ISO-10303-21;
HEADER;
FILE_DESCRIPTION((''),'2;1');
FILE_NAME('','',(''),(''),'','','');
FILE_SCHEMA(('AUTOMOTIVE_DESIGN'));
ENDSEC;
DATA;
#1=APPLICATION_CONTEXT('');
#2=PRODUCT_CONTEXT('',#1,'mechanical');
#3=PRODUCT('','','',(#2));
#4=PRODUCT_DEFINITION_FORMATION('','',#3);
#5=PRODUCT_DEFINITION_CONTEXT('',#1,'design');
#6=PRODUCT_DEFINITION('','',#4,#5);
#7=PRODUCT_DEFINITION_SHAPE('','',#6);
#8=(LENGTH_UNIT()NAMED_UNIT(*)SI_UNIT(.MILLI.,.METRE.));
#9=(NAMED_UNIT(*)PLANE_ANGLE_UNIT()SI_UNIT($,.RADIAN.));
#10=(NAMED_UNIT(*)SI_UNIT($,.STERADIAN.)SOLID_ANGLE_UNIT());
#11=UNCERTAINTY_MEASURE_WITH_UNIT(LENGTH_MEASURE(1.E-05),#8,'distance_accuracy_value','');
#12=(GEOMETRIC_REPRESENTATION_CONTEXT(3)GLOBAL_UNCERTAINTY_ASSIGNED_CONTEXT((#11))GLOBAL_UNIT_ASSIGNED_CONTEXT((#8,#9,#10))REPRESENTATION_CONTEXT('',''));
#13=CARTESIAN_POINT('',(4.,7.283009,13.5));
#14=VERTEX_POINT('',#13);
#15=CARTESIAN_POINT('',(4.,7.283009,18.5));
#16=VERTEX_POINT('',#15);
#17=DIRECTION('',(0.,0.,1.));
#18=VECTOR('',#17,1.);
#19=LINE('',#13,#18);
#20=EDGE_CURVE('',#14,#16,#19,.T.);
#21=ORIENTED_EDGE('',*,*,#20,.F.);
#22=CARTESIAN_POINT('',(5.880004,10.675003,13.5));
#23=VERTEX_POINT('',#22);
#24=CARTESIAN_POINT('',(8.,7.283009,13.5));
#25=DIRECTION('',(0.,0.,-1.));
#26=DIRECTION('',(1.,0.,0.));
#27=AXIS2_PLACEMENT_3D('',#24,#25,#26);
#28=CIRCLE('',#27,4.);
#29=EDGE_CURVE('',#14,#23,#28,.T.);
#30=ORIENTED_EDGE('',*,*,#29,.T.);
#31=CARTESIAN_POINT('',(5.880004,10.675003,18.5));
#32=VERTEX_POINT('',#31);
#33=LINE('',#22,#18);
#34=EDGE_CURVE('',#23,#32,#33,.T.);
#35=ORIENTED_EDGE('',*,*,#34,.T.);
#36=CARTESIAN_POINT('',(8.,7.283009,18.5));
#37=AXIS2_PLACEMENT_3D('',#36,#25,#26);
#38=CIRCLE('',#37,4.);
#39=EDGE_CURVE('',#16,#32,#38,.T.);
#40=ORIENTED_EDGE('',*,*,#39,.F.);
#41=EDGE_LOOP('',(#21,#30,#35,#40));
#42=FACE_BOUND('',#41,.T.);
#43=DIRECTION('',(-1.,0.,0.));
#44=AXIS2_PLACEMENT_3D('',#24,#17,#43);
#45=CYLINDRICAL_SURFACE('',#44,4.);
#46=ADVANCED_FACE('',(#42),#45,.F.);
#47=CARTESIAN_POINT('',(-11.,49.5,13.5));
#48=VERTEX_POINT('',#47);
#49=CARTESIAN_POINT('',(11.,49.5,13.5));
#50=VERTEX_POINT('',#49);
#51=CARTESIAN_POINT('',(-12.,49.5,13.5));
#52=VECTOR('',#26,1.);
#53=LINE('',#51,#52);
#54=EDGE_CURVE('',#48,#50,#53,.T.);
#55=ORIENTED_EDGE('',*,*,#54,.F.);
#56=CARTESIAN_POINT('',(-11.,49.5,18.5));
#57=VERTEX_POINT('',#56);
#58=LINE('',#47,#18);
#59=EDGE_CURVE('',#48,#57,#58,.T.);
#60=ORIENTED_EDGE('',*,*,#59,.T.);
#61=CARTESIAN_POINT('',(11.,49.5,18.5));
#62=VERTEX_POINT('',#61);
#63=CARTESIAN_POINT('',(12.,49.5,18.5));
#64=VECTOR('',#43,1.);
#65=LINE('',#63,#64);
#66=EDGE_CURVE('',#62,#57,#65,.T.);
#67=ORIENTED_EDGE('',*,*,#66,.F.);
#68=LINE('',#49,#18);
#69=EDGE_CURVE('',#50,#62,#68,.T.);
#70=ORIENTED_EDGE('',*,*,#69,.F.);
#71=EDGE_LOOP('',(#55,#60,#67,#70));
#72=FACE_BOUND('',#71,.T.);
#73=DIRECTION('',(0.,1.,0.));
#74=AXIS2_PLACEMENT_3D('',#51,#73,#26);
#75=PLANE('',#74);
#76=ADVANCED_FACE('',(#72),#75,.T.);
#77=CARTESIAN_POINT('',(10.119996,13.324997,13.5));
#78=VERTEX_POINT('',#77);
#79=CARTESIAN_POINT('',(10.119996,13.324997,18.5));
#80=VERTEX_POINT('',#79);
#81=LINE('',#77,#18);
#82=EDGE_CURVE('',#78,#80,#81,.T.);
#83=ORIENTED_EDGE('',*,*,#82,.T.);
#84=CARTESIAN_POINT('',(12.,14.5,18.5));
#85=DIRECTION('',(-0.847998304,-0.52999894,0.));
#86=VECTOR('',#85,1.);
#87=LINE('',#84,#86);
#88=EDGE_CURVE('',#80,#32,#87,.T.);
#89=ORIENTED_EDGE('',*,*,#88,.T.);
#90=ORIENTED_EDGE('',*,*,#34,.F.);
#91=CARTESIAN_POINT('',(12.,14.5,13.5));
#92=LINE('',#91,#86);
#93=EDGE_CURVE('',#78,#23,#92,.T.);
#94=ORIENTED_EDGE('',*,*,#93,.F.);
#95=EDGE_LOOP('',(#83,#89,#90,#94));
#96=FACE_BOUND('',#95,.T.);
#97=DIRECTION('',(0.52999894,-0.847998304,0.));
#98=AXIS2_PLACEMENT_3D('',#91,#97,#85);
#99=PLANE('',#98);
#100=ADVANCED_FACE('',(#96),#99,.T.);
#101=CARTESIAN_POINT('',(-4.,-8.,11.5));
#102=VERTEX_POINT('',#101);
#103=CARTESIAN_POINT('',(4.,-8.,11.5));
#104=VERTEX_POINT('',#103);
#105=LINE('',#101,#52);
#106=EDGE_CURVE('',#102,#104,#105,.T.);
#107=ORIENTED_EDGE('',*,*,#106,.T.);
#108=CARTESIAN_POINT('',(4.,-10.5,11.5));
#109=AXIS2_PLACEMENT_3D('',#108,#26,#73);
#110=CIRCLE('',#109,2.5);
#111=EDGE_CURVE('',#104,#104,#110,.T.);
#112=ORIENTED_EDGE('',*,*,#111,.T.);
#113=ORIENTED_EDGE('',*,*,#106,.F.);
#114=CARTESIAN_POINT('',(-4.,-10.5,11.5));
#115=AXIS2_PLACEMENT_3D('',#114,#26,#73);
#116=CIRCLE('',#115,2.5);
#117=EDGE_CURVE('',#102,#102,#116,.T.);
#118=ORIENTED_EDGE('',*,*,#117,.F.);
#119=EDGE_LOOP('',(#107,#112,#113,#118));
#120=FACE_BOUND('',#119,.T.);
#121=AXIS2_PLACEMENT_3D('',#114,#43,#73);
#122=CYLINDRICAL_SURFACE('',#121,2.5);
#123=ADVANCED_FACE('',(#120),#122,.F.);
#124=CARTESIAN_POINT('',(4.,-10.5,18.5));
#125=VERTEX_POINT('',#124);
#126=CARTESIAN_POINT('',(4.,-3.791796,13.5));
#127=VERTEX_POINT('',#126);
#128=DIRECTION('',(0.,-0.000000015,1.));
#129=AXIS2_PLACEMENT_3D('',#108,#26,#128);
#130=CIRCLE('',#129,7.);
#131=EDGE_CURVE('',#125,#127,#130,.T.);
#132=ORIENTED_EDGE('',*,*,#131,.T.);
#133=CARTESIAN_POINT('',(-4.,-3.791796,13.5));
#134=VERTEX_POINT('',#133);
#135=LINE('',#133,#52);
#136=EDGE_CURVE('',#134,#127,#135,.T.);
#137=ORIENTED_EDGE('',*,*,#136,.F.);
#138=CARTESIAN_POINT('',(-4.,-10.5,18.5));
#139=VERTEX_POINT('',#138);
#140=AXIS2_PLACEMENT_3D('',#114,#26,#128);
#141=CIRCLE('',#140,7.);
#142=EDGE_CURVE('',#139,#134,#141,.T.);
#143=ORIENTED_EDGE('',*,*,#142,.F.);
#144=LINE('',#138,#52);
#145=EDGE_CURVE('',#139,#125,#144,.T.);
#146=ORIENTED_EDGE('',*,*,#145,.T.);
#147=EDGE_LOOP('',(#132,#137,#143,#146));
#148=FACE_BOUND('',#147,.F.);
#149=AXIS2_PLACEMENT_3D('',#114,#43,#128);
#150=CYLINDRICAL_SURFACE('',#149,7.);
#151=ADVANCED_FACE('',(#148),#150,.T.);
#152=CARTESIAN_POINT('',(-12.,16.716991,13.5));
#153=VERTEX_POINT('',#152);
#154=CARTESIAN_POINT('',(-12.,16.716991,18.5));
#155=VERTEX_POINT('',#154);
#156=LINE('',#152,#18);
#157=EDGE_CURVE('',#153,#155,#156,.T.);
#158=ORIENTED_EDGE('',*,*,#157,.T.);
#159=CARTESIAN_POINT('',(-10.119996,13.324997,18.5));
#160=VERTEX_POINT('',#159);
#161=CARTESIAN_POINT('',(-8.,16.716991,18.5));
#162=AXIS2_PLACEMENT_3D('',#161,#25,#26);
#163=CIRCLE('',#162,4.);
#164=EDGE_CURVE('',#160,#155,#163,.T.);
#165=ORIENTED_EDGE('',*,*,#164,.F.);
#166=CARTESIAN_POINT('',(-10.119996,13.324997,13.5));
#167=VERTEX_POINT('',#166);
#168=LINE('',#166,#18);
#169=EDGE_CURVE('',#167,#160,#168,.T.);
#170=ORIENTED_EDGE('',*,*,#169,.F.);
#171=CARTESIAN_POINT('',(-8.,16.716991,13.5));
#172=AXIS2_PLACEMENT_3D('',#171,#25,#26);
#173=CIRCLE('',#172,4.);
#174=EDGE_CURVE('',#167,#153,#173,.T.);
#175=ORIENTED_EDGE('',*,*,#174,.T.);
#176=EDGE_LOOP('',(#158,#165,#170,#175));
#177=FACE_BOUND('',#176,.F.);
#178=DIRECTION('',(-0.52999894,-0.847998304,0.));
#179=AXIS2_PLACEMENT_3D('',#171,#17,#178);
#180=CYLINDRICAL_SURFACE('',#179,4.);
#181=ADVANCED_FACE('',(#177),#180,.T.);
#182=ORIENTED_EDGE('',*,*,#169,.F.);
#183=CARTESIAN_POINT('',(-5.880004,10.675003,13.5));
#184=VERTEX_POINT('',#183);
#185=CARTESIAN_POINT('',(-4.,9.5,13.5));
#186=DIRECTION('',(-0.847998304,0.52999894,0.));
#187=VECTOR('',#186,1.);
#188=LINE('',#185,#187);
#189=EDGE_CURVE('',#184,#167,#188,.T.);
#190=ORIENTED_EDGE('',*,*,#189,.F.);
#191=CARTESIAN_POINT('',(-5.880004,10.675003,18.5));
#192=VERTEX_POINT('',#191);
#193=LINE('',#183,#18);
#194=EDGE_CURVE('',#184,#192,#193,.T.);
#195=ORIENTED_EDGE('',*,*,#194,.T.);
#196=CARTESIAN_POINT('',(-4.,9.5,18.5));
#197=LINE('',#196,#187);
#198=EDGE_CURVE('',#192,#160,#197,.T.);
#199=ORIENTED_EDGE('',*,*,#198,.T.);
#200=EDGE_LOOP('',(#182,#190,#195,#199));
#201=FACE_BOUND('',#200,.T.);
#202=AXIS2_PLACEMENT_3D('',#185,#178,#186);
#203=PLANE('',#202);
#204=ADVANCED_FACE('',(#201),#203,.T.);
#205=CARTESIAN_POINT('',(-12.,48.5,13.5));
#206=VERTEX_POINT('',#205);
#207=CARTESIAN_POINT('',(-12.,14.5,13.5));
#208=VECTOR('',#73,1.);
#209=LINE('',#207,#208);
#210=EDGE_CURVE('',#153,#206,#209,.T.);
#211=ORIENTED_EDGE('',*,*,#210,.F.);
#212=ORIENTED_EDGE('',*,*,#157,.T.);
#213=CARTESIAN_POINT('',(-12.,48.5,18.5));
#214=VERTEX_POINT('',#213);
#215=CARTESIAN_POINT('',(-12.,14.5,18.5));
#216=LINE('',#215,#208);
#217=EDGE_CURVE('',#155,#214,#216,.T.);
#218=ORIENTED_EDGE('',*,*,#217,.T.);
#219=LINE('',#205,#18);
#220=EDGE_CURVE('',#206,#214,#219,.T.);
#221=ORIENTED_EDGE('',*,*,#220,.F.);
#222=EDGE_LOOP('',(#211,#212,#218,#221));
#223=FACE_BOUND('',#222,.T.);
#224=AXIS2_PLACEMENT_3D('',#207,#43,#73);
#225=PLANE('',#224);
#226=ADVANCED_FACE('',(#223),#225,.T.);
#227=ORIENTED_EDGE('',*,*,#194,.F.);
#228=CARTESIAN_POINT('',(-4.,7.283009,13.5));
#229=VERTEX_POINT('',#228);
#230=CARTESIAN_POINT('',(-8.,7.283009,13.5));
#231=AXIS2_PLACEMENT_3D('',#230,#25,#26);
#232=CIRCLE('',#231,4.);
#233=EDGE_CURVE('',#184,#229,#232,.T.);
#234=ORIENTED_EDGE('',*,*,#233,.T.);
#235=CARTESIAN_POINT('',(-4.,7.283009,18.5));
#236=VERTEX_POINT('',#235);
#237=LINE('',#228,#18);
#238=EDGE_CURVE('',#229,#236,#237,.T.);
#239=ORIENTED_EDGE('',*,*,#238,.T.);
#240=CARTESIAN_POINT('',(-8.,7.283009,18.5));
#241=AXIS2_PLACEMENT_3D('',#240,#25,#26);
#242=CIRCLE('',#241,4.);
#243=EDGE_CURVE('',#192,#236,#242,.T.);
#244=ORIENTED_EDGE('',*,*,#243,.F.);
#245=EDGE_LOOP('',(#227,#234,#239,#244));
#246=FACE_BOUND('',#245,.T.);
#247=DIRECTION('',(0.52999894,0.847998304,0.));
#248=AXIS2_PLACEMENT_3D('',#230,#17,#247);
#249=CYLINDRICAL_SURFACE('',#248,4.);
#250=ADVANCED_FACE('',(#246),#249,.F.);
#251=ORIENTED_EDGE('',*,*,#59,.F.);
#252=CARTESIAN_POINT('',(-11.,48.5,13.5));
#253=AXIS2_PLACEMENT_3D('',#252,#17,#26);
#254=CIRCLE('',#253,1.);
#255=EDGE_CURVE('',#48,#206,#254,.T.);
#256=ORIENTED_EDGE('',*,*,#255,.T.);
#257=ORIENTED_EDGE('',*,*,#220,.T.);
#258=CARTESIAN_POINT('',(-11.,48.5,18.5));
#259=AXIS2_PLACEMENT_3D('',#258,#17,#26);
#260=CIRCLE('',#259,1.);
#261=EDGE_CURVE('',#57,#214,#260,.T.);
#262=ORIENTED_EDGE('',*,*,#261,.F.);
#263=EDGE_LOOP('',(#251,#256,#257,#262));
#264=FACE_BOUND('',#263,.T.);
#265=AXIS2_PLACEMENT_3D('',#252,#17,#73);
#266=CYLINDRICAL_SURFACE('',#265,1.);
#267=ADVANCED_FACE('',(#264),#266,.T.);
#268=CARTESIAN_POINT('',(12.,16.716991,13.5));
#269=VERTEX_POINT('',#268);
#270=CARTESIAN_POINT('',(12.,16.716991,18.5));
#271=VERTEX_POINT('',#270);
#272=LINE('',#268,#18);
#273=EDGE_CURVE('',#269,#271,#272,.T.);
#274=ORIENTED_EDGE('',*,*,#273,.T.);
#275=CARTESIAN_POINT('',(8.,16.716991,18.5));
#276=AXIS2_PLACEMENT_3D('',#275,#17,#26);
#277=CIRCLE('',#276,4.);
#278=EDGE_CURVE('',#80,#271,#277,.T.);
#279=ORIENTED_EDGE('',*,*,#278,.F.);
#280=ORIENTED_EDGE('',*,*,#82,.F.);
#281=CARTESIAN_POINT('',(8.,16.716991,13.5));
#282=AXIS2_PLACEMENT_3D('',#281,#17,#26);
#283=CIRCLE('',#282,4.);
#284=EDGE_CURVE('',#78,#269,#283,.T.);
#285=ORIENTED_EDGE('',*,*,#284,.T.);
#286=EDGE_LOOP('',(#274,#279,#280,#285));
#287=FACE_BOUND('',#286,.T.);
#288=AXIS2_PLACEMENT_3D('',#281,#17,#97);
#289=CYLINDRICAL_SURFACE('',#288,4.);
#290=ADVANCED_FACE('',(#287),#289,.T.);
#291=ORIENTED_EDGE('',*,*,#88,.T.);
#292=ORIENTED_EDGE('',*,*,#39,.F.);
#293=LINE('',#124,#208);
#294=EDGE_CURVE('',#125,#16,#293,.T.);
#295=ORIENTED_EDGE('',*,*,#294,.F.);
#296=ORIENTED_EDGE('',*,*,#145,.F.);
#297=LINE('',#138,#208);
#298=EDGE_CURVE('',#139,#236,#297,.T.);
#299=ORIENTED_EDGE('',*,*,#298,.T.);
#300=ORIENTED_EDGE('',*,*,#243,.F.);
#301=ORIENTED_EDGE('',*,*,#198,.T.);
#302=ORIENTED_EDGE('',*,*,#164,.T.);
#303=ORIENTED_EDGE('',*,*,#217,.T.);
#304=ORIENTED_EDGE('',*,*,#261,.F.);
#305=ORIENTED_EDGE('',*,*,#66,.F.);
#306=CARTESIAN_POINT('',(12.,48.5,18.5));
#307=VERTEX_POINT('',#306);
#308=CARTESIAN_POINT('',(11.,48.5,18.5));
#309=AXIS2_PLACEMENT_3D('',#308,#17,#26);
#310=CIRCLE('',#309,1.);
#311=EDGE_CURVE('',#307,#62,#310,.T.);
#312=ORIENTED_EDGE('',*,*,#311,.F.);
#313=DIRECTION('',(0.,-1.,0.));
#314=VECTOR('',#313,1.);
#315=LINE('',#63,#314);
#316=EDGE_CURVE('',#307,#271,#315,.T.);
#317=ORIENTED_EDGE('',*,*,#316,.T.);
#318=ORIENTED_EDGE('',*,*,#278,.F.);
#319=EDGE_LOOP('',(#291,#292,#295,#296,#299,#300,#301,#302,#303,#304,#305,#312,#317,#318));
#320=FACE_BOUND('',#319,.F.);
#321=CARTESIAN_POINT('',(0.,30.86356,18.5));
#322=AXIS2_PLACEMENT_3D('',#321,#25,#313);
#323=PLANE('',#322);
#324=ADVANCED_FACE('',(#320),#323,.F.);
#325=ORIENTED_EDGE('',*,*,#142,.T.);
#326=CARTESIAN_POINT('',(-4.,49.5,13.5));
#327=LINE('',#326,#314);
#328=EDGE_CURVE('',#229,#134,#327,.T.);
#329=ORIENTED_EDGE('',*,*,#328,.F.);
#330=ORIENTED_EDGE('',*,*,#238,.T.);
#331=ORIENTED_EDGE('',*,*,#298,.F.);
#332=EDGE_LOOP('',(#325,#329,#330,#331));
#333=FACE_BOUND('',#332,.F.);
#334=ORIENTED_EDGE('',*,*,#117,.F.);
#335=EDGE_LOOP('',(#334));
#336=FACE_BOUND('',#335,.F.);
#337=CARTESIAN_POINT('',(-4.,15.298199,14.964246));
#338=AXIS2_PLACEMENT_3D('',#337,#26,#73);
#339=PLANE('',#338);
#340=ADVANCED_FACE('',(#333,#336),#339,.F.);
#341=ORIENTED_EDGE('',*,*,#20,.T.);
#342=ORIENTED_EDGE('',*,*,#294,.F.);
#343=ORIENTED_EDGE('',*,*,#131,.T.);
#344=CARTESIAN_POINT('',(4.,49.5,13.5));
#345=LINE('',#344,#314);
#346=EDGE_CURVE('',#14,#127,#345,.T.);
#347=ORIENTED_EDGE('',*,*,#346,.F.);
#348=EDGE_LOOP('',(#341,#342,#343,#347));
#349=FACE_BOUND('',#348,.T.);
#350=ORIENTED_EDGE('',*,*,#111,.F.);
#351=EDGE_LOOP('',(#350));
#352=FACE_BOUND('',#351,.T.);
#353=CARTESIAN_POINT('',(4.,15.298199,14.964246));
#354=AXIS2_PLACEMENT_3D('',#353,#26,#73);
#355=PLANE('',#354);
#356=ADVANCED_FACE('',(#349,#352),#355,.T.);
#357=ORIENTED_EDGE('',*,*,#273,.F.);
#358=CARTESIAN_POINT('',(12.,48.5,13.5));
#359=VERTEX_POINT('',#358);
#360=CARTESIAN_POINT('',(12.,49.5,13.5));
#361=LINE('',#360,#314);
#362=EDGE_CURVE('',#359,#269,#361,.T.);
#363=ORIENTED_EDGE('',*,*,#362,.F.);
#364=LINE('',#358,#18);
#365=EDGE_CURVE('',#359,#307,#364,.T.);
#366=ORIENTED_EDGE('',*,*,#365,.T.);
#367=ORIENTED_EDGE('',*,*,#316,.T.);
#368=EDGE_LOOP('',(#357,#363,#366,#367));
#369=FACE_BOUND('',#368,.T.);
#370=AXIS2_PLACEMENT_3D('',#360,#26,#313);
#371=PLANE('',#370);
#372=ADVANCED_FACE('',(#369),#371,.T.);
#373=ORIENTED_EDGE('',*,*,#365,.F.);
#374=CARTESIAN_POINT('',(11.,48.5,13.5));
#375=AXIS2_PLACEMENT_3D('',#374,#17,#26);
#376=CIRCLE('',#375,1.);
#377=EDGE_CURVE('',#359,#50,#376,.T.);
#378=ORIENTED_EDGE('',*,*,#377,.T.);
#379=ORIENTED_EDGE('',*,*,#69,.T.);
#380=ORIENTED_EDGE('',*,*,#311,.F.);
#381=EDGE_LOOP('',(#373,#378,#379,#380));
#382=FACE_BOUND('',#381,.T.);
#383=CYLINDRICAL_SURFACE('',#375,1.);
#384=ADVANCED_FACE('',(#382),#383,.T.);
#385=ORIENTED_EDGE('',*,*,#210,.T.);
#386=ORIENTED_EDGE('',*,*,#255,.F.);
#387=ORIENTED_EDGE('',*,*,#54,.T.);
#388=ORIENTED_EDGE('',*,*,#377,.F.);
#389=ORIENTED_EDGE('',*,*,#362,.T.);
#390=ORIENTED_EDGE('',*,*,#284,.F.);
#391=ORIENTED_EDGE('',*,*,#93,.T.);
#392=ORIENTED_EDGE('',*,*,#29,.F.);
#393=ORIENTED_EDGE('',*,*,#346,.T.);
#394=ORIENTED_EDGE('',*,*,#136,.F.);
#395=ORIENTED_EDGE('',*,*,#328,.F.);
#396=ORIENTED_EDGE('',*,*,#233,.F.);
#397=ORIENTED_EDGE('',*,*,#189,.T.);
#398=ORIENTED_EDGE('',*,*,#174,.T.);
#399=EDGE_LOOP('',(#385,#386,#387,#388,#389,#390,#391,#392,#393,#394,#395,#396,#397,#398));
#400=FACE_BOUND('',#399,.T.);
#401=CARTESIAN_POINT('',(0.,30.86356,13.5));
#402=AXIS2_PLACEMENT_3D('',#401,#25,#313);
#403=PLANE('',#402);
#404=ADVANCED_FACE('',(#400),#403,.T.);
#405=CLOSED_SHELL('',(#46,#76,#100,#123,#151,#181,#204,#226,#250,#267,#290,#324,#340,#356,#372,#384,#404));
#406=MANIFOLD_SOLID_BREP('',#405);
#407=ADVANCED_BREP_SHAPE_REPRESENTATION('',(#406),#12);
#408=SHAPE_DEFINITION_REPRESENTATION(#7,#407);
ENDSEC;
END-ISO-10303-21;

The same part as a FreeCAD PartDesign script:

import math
import FreeCAD as App
import Part
import Sketcher
Q = App.Units.Quantity


def edges_at(feature, points):
    """Names of the edges that pass closest to the given points."""
    edges = feature.Shape.Edges
    near = lambda p: min(range(len(edges)), key=lambda i: edges[i].distToShape(Part.Vertex(*p))[0])
    return sorted({f"Edge{near(p) + 1}" for p in points})


def add_polygon(sketch, points):
    """Adds a closed chain of lines whose ends are joined by coincident constraints."""
    first, n = sketch.GeometryCount, len(points)
    for a, b in zip(points, points[1:] + points[:1]):
        sketch.addGeometry(Part.LineSegment(App.Vector(*a, 0), App.Vector(*b, 0)), False)
    for i in range(n):
        sketch.addConstraint(Sketcher.Constraint("Coincident", first + i, 2, first + (i + 1) % n, 1))

doc = App.newDocument("Part")
body = doc.addObject("PartDesign::Body", "Body")

# Sketch on XZ plane
sketch1 = body.newObject("Sketcher::SketchObject", "Sketch")
sketch1.AttachmentSupport = (doc.getObject("XZ_Plane"), [""])
sketch1.MapMode = "FlatFace"
sketch1.addGeometry(Part.ArcOfCircle(Part.Circle(App.Vector(0, 0, 0), App.Vector(0, 0, 1), 7), math.radians(90), math.radians(377)), False)
sketch1.addGeometry(Part.LineSegment(App.Vector(6.7, 2, 0), App.Vector(60, 2, 0)), False)
sketch1.addGeometry(Part.LineSegment(App.Vector(60, 2, 0), App.Vector(60, 7, 0)), False)
sketch1.addGeometry(Part.LineSegment(App.Vector(60, 7, 0), App.Vector(0, 7, 0)), False)
sketch1.addGeometry(Part.Circle(App.Vector(0, 0, 0), App.Vector(0, 0, 1), 2.5), False)
sketch1.addConstraint(Sketcher.Constraint("Coincident", 0, 2, 1, 1))
sketch1.addConstraint(Sketcher.Constraint("Coincident", 1, 2, 2, 1))
sketch1.addConstraint(Sketcher.Constraint("Coincident", 2, 2, 3, 1))
sketch1.addConstraint(Sketcher.Constraint("Tangent", 3, 2, 0, 1))
sketch1.addConstraint(Sketcher.Constraint("Horizontal", 1))
sketch1.addConstraint(Sketcher.Constraint("Vertical", 2))
sketch1.addConstraint(Sketcher.Constraint("Horizontal", 3))
sketch1.addConstraint(Sketcher.Constraint("Coincident", 0, 3, -1, 1))
sketch1.addConstraint(Sketcher.Constraint("Coincident", 4, 3, -1, 1))
sketch1.addConstraint(Sketcher.Constraint("Diameter", 4, Q("5 mm")))
sketch1.addConstraint(Sketcher.Constraint("Radius", 0, Q("7 mm")))
sketch1.addConstraint(Sketcher.Constraint("DistanceX", 3, 2, 3, 1, Q("60 mm")))
sketch1.addConstraint(Sketcher.Constraint("DistanceY", 2, 1, 2, 2, Q("5 mm")))
pad1 = body.newObject("PartDesign::Pad", "Pad")
pad1.Profile = sketch1
pad1.Length = 8

# Sketch on XY plane
sketch2 = body.newObject("Sketcher::SketchObject", "Sketch001")
sketch2.AttachmentSupport = (doc.getObject("XY_Plane"), [""])
sketch2.MapMode = "FlatFace"
sketch2.AttachmentOffset = App.Placement(App.Vector(0, 0, 2), App.Rotation())
add_polygon(sketch2, [(25, 8), (20, 0), (20, -8), (25, -16), (60, -16), (60, 8)])  # lines 0-5
sketch2.addConstraint(Sketcher.Constraint("Vertical", 1))
sketch2.addConstraint(Sketcher.Constraint("Horizontal", 3))
sketch2.addConstraint(Sketcher.Constraint("Vertical", 4))
sketch2.addConstraint(Sketcher.Constraint("Horizontal", 5))
sketch2.addConstraint(Sketcher.Constraint("PointOnObject", 0, 2, -1))
sketch2.addConstraint(Sketcher.Constraint("Vertical", 2, 2, 5, 2))
sketch2.addConstraint(Sketcher.Constraint("Equal", 0, 2))
sketch2.addConstraint(Sketcher.Constraint("DistanceX", 3, 1, 3, 2, Q("35 mm")))
sketch2.addConstraint(Sketcher.Constraint("DistanceY", 1, 2, 1, 1, Q("8 mm")))
sketch2.addConstraint(Sketcher.Constraint("DistanceY", 4, 1, 4, 2, Q("24 mm")))
sketch2.addConstraint(Sketcher.Constraint("DistanceX", -1, 1, 0, 2, Q("20 mm")))
sketch2.addConstraint(Sketcher.Constraint("DistanceX", -1, 1, 2, 2, Q("25 mm")))
pad2 = body.newObject("PartDesign::Pad", "Pad001")
pad2.Profile = sketch2
pad2.Length = 5
doc.recompute()

fillet = body.newObject("PartDesign::Fillet", "Fillet")
fillet.Base = (pad2, edges_at(pad2, [
    (25, 8, 4.5),
    (25, -16, 4.5),
    (20, -8, 4.5),
    (20, 0, 4.5),
]))
fillet.Radius = 4
doc.recompute()

fillet2 = body.newObject("PartDesign::Fillet", "Fillet001")
fillet2.Base = (fillet, edges_at(fillet, [(60, 8, 4.5), (60, -16, 4.5)]))
fillet2.Radius = 1
body2 = doc.addObject("PartDesign::Body", "Body001")
doc.recompute()

body.Placement = App.Placement(App.Vector(-4, -10.5, 11.5), App.Rotation(App.Vector(0, 0, 1), 90))
boolean = body2.newObject("PartDesign::Boolean", "Boolean")
boolean.Type = "Fuse"
boolean.addObjects([body])

doc.recompute()
